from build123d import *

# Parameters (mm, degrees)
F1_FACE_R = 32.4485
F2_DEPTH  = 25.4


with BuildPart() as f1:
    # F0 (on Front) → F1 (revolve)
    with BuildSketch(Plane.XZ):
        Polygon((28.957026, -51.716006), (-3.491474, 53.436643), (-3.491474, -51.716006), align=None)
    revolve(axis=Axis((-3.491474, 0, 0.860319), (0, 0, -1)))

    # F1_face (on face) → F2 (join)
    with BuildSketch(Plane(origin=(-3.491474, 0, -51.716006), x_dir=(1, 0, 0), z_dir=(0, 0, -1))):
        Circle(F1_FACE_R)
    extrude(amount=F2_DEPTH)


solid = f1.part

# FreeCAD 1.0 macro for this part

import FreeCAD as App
import Part
import Sketcher
Q = App.Units.Quantity


def add_polygon(sketch, points):
    """Adds a closed chain of lines whose ends are joined by coincident constraints."""
    first, n = sketch.GeometryCount, len(points)
    for a, b in zip(points, points[1:] + points[:1]):
        sketch.addGeometry(Part.LineSegment(App.Vector(*a, 0), App.Vector(*b, 0)), False)
    for i in range(n):
        sketch.addConstraint(Sketcher.Constraint("Coincident", first + i, 2, first + (i + 1) % n, 1))

doc = App.newDocument("Part")
body = doc.addObject("PartDesign::Body", "Body")

# Sketch on XZ plane
sketch1 = doc.addObject("Sketcher::SketchObject", "Sketch")
body.addObject(sketch1)
sketch1.AttachmentSupport = (doc.XZ_Plane, [""])
sketch1.MapMode = "FlatFace"
add_polygon(sketch1, [(28.957026, -51.716006), (-3.491474, 53.436643), (-3.491474, -51.716006)])  # lines 0-2
sketch1.addGeometry(Part.LineSegment(App.Vector(-3.491474, 53.436643, 0), App.Vector(-3.491474, -51.716006, 0)), True)  # axis
sketch1.addConstraint(Sketcher.Constraint("Vertical", 1))
sketch1.addConstraint(Sketcher.Constraint("Horizontal", 2))
sketch1.addConstraint(Sketcher.Constraint("Vertical", 3))
sketch1.addConstraint(Sketcher.Constraint("Coincident", 3, 1, 0, 2))
sketch1.addConstraint(Sketcher.Constraint("Horizontal", 2, 2, 3, 2))
sketch1.addConstraint(Sketcher.Constraint("DistanceX", 2, 1, 2, 2, Q("1.2775 in")))
sketch1.addConstraint(Sketcher.Constraint("DistanceY", 1, 2, 1, 1, Q("105.152649 mm")))
sketch1.addConstraint(Sketcher.Constraint("DistanceX", 0, 2, -1, 1, Q("3.491474 mm")))
sketch1.addConstraint(Sketcher.Constraint("DistanceY", -1, 1, 0, 2, Q("53.436643 mm")))
revolution = doc.addObject("PartDesign::Revolution", "Revolution")
body.addObject(revolution)
revolution.Profile = sketch1
revolution.ReferenceAxis = (sketch1, ["Axis0"])
revolution.Angle = 360

# Sketch on XY plane
sketch2 = doc.addObject("Sketcher::SketchObject", "Sketch001")
body.addObject(sketch2)
sketch2.AttachmentSupport = (doc.XY_Plane, [""])
sketch2.MapMode = "FlatFace"
sketch2.AttachmentOffset = App.Placement(App.Vector(0, 0, -51.716006), App.Rotation())
sketch2.addGeometry(Part.Circle(App.Vector(-3.491474, 0, 0), App.Vector(0, 0, 1), 32.4485), False)
sketch2.addConstraint(Sketcher.Constraint("PointOnObject", 0, 3, -1))
sketch2.addConstraint(Sketcher.Constraint("Diameter", 0, Q("2.555 in")))
sketch2.addConstraint(Sketcher.Constraint("DistanceX", 0, 3, -1, 1, Q("3.491474 mm")))
pad1 = doc.addObject("PartDesign::Pad", "Pad")
body.addObject(pad1)
pad1.Profile = sketch2
pad1.Length = Q("1 in")
pad1.Reversed = True

doc.recompute()
